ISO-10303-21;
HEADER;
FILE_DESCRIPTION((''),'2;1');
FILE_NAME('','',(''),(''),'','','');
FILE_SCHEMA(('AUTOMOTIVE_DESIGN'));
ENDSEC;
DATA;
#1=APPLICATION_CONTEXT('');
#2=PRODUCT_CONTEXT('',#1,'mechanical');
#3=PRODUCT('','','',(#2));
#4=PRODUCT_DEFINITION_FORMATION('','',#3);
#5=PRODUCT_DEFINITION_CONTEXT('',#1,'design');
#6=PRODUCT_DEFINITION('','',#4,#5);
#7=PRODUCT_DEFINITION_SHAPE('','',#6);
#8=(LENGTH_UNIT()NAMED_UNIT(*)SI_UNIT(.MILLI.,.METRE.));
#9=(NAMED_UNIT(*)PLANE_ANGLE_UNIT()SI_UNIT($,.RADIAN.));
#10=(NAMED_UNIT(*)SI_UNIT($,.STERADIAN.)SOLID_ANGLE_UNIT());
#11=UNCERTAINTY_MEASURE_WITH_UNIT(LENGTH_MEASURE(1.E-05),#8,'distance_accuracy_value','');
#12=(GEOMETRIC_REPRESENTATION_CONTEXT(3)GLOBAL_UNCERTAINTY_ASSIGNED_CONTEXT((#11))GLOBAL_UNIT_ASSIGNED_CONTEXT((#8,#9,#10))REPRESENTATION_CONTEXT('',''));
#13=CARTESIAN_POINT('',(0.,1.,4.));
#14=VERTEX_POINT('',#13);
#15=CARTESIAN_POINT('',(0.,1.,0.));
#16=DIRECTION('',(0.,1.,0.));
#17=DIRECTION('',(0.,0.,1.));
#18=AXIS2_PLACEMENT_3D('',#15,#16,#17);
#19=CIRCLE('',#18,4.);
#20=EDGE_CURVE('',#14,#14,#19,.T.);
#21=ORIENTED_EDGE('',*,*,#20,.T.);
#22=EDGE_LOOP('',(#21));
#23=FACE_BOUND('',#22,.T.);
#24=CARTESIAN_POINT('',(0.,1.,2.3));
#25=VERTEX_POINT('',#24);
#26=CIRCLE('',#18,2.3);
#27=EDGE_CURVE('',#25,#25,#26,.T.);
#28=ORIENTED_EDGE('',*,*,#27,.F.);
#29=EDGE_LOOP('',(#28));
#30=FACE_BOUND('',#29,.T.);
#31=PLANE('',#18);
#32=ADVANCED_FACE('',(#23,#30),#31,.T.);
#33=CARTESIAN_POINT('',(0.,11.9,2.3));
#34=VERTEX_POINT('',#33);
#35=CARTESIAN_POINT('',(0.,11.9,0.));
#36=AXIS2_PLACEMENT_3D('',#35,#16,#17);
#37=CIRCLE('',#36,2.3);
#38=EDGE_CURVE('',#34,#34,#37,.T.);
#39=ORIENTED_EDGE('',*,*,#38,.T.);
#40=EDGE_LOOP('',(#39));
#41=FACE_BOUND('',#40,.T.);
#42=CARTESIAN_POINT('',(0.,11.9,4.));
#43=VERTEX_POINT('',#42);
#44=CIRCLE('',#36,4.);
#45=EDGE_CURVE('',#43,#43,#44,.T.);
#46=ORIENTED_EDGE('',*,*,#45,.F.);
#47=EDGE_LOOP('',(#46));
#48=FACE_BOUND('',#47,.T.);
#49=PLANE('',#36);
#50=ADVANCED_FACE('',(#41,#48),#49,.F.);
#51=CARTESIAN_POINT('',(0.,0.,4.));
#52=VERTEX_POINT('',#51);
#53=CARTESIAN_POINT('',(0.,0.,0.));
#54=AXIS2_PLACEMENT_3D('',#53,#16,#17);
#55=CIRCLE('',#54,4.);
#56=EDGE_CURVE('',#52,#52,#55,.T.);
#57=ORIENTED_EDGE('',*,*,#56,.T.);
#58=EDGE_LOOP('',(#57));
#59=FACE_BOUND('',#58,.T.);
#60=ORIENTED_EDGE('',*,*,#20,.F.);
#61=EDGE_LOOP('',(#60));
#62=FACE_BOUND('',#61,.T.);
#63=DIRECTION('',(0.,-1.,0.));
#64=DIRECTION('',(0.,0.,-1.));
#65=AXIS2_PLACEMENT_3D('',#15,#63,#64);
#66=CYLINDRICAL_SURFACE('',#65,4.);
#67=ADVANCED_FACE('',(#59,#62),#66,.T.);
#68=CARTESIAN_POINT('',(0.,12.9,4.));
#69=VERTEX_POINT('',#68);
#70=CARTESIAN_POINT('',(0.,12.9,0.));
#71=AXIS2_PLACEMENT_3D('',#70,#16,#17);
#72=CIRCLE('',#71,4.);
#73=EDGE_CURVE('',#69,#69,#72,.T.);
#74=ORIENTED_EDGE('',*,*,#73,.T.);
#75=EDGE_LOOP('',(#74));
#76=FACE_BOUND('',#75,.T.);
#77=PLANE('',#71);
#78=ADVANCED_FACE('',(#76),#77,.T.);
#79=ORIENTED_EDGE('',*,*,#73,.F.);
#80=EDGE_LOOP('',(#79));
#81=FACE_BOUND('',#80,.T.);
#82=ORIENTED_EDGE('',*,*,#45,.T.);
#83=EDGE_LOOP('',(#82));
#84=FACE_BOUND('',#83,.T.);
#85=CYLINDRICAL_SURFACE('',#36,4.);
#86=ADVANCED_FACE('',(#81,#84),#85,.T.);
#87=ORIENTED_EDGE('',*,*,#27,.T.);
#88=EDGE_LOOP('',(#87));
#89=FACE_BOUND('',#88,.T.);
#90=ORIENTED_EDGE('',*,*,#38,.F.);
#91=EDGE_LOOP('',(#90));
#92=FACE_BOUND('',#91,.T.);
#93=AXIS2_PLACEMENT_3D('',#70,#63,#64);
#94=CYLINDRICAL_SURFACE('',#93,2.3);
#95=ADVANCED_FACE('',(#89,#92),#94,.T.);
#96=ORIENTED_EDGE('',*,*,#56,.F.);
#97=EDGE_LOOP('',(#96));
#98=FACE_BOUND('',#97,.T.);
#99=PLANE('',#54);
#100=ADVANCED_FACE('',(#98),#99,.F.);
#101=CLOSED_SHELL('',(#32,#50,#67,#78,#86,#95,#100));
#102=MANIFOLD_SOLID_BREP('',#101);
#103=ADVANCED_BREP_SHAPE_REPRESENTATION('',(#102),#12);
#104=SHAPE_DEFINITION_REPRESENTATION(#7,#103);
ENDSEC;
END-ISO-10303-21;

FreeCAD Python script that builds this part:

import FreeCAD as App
import Part
import Sketcher
Q = App.Units.Quantity

doc = App.newDocument("Part")
body = doc.addObject("PartDesign::Body", "Body")

# Sketch on XZ plane
sketch1 = body.newObject("Sketcher::SketchObject", "Sketch")
sketch1.AttachmentSupport = (doc.getObject("XZ_Plane"), [""])
sketch1.MapMode = "FlatFace"
sketch1.addGeometry(Part.Circle(App.Vector(0, 0, 0), App.Vector(0, 0, 1), 2.3), False)
sketch1.addConstraint([
    Sketcher.Constraint("Coincident", 0, 3, -1, 1),
    Sketcher.Constraint("Diameter", 0, Q("4.6 mm")),
])
pad1 = body.newObject("PartDesign::Pad", "Pad")
pad1.Profile = sketch1
pad1.Length = 12.9
pad1.Reversed = True

# Sketch on XZ plane
sketch2 = body.newObject("Sketcher::SketchObject", "Sketch001")
sketch2.AttachmentSupport = (doc.getObject("XZ_Plane"), [""])
sketch2.MapMode = "FlatFace"
sketch2.AttachmentOffset = App.Placement(App.Vector(0, 0, -12.9), App.Rotation())
sketch2.addGeometry([
    Part.Circle(App.Vector(0, 0, 0), App.Vector(0, 0, 1), 4),
    Part.Circle(App.Vector(0, 0, 0), App.Vector(0, 0, 1), 2.3),
], False)
sketch2.addConstraint([
    Sketcher.Constraint("Coincident", 0, 3, -1, 1),
    Sketcher.Constraint("Coincident", 1, 3, -1, 1),
    Sketcher.Constraint("Diameter", 0, Q("8 mm")),
    Sketcher.Constraint("Diameter", 1, Q("4.6 mm")),
])
pad2 = body.newObject("PartDesign::Pad", "Pad001")
pad2.Profile = sketch2
pad2.Length = 1

# Sketch on XZ plane
sketch3 = body.newObject("Sketcher::SketchObject", "Sketch002")
sketch3.AttachmentSupport = (doc.getObject("XZ_Plane"), [""])
sketch3.MapMode = "FlatFace"
sketch3.addGeometry([
    Part.Circle(App.Vector(0, 0, 0), App.Vector(0, 0, 1), 4),
    Part.Circle(App.Vector(0, 0, 0), App.Vector(0, 0, 1), 2.3),
], False)
sketch3.addConstraint([
    Sketcher.Constraint("Coincident", 0, 3, -1, 1),
    Sketcher.Constraint("Coincident", 1, 3, -1, 1),
    Sketcher.Constraint("Diameter", 0, Q("8 mm")),
    Sketcher.Constraint("Diameter", 1, Q("4.6 mm")),
])
pad3 = body.newObject("PartDesign::Pad", "Pad002")
pad3.Profile = sketch3
pad3.Length = 1
pad3.Reversed = True

doc.recompute()
